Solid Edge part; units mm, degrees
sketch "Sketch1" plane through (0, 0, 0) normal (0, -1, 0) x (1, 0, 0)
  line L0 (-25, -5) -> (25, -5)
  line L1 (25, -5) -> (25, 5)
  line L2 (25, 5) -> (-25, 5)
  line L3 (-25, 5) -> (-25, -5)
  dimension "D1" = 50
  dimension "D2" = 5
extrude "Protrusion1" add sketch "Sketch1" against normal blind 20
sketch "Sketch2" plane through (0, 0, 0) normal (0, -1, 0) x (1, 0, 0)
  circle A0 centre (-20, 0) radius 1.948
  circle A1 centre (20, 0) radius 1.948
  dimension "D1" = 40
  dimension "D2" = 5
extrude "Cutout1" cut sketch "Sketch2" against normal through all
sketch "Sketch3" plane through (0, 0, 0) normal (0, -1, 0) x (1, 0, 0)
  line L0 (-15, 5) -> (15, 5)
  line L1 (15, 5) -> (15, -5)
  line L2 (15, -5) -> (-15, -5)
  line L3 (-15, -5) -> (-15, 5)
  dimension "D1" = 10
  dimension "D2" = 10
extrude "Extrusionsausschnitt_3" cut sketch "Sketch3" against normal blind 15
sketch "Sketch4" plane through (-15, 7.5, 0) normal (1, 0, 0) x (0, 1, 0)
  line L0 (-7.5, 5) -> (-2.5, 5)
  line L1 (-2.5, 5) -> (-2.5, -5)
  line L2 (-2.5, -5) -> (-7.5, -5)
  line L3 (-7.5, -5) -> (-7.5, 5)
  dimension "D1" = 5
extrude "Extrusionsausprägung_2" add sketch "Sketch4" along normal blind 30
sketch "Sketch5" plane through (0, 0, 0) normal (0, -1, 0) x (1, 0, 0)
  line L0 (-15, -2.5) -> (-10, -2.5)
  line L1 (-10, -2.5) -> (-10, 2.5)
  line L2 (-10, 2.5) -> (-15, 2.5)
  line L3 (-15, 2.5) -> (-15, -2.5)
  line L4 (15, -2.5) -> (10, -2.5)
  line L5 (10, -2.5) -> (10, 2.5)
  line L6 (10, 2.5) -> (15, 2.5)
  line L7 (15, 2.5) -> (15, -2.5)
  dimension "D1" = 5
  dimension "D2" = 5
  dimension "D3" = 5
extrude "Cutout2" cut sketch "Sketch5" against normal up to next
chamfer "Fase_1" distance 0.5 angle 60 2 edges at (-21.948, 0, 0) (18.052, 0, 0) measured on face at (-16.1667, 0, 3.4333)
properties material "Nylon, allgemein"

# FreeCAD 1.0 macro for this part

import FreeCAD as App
import Part
import Sketcher


def edges_at(feature, points):
    """Names of the edges that pass closest to the given points."""
    edges = feature.Shape.Edges
    near = lambda p: min(range(len(edges)), key=lambda i: edges[i].distToShape(Part.Vertex(*p))[0])
    return sorted({f"Edge{near(p) + 1}" for p in points})

doc = App.newDocument("Part")
body = doc.addObject("PartDesign::Body", "Body")

# Sketch on XZ plane
sketch1 = body.newObject("Sketcher::SketchObject", "Sketch")
sketch1.AttachmentSupport = (doc.getObject("XZ_Plane"), [""])
sketch1.MapMode = "FlatFace"
sketch1.addGeometry([
    Part.LineSegment(App.Vector(-25, 5, 0), App.Vector(-25, -5, 0)),
    Part.LineSegment(App.Vector(-25, -5, 0), App.Vector(25, -5, 0)),
    Part.LineSegment(App.Vector(25, -5, 0), App.Vector(25, 5, 0)),
    Part.LineSegment(App.Vector(25, 5, 0), App.Vector(-25, 5, 0)),
], False)
sketch1.addConstraint([
    Sketcher.Constraint("Coincident", 0, 2, 1, 1),
    Sketcher.Constraint("Coincident", 1, 2, 2, 1),
    Sketcher.Constraint("Coincident", 2, 2, 3, 1),
    Sketcher.Constraint("Coincident", 3, 2, 0, 1),
    Sketcher.Constraint("Vertical", 0),
    Sketcher.Constraint("Horizontal", 1),
    Sketcher.Constraint("Vertical", 2),
    Sketcher.Constraint("Horizontal", 3),
    Sketcher.Constraint("Symmetric", 0, 2, 2, 2, -1, 1),
    Sketcher.Constraint("DistanceX", 0, 2, -1, 1, 25.0),
    Sketcher.Constraint("DistanceY", 0, 2, 0, 1, 10.0),
])
pad1 = body.newObject("PartDesign::Pad", "Pad")
pad1.Profile = sketch1
pad1.Length = 20
pad1.Reversed = True

# Sketch on XZ plane
sketch2 = body.newObject("Sketcher::SketchObject", "Sketch001")
sketch2.AttachmentSupport = (doc.getObject("XZ_Plane"), [""])
sketch2.MapMode = "FlatFace"
sketch2.addGeometry([
    Part.Circle(App.Vector(-20, 0, 0), App.Vector(0, 0, 1), 1.9),
    Part.Circle(App.Vector(20, 0, 0), App.Vector(0, 0, 1), 1.9),
], False)
sketch2.addConstraint([
    Sketcher.Constraint("Equal", 0, 1),
    Sketcher.Constraint("Symmetric", 0, 3, 1, 3, -1, 1),
    Sketcher.Constraint("PointOnObject", 0, 3, -1),
    Sketcher.Constraint("Diameter", 0, 3.896),
    Sketcher.Constraint("DistanceX", 0, 3, -1, 1, 20.0),
])
pocket1 = body.newObject("PartDesign::Pocket", "Pocket")
pocket1.Profile = sketch2
pocket1.Type = "ThroughAll"

# Sketch on XZ plane
sketch3 = body.newObject("Sketcher::SketchObject", "Sketch002")
sketch3.AttachmentSupport = (doc.getObject("XZ_Plane"), [""])
sketch3.MapMode = "FlatFace"
sketch3.addGeometry([
    Part.LineSegment(App.Vector(15, 5, 0), App.Vector(-15, 5, 0)),
    Part.LineSegment(App.Vector(-15, 5, 0), App.Vector(-15, -5, 0)),
    Part.LineSegment(App.Vector(-15, -5, 0), App.Vector(15, -5, 0)),
    Part.LineSegment(App.Vector(15, -5, 0), App.Vector(15, 5, 0)),
], False)
sketch3.addConstraint([
    Sketcher.Constraint("Coincident", 0, 2, 1, 1),
    Sketcher.Constraint("Coincident", 1, 2, 2, 1),
    Sketcher.Constraint("Coincident", 2, 2, 3, 1),
    Sketcher.Constraint("Coincident", 3, 2, 0, 1),
    Sketcher.Constraint("Horizontal", 0),
    Sketcher.Constraint("Vertical", 1),
    Sketcher.Constraint("Horizontal", 2),
    Sketcher.Constraint("Vertical", 3),
    Sketcher.Constraint("Symmetric", 0, 2, 2, 2, -1, 1),
    Sketcher.Constraint("DistanceX", 0, 2, 0, 1, 30.0),
    Sketcher.Constraint("DistanceY", 1, 2, 1, 1, 10.0),
])
pocket2 = body.newObject("PartDesign::Pocket", "Pocket001")
pocket2.Profile = sketch3
pocket2.Length = 15

# Sketch on YZ plane
sketch4 = body.newObject("Sketcher::SketchObject", "Sketch003")
sketch4.AttachmentSupport = (doc.getObject("YZ_Plane"), [""])
sketch4.MapMode = "FlatFace"
sketch4.AttachmentOffset = App.Placement(App.Vector(0, 0, -15), App.Rotation())
sketch4.addGeometry([
    Part.LineSegment(App.Vector(5, 5, 0), App.Vector(0, 5, 0)),
    Part.LineSegment(App.Vector(0, 5, 0), App.Vector(0, -5, 0)),
    Part.LineSegment(App.Vector(0, -5, 0), App.Vector(5, -5, 0)),
    Part.LineSegment(App.Vector(5, -5, 0), App.Vector(5, 5, 0)),
], False)
sketch4.addConstraint([
    Sketcher.Constraint("Coincident", 0, 2, 1, 1),
    Sketcher.Constraint("Coincident", 1, 2, 2, 1),
    Sketcher.Constraint("Coincident", 2, 2, 3, 1),
    Sketcher.Constraint("Coincident", 3, 2, 0, 1),
    Sketcher.Constraint("Horizontal", 0),
    Sketcher.Constraint("Vertical", 1),
    Sketcher.Constraint("Horizontal", 2),
    Sketcher.Constraint("Vertical", 3),
    Sketcher.Constraint("Symmetric", 0, 2, 1, 2, -1, 1),
    Sketcher.Constraint("DistanceX", 0, 2, 0, 1, 5.0),
    Sketcher.Constraint("DistanceY", 1, 2, 1, 1, 10.0),
])
pad2 = body.newObject("PartDesign::Pad", "Pad001")
pad2.Profile = sketch4
pad2.Length = 30

# Sketch on XZ plane
sketch5 = body.newObject("Sketcher::SketchObject", "Sketch004")
sketch5.AttachmentSupport = (doc.getObject("XZ_Plane"), [""])
sketch5.MapMode = "FlatFace"
sketch5.addGeometry([
    Part.LineSegment(App.Vector(-15, 2, 0), App.Vector(-15, -2, 0)),  # 0
    Part.LineSegment(App.Vector(-15, -2, 0), App.Vector(-10, -2, 0)),  # 1
    Part.LineSegment(App.Vector(-10, -2, 0), App.Vector(-10, 2, 0)),  # 2
    Part.LineSegment(App.Vector(-10, 2, 0), App.Vector(-15, 2, 0)),  # 3
    Part.LineSegment(App.Vector(10, -2, 0), App.Vector(15, -2, 0)),  # 4
    Part.LineSegment(App.Vector(15, -2, 0), App.Vector(15, 2, 0)),  # 5
    Part.LineSegment(App.Vector(15, 2, 0), App.Vector(10, 2, 0)),  # 6
    Part.LineSegment(App.Vector(10, 2, 0), App.Vector(10, -2, 0)),  # 7
], False)
sketch5.addConstraint([
    Sketcher.Constraint("Coincident", 0, 2, 1, 1),
    Sketcher.Constraint("Coincident", 1, 2, 2, 1),
    Sketcher.Constraint("Coincident", 2, 2, 3, 1),
    Sketcher.Constraint("Coincident", 3, 2, 0, 1),
    Sketcher.Constraint("Coincident", 4, 2, 5, 1),
    Sketcher.Constraint("Coincident", 5, 2, 6, 1),
    Sketcher.Constraint("Coincident", 6, 2, 7, 1),
    Sketcher.Constraint("Coincident", 7, 2, 4, 1),
    Sketcher.Constraint("Vertical", 0),
    Sketcher.Constraint("Horizontal", 1),
    Sketcher.Constraint("Vertical", 2),
    Sketcher.Constraint("Horizontal", 3),
    Sketcher.Constraint("Horizontal", 4),
    Sketcher.Constraint("Vertical", 5),
    Sketcher.Constraint("Horizontal", 6),
    Sketcher.Constraint("Vertical", 7),
    Sketcher.Constraint("Symmetric", 3, 2, 4, 2, -1, 1),
    Sketcher.Constraint("Symmetric", 1, 2, 6, 2, -1, 1),
    Sketcher.Constraint("Horizontal", 1, 2, 4, 2),
    Sketcher.Constraint("Equal", 6, 0),
    Sketcher.Constraint("DistanceX", 1, 2, -1, 1, 10.0),
    Sketcher.Constraint("DistanceX", 1, 1, 1, 2, 5.0),
])
pocket3 = body.newObject("PartDesign::Pocket", "Pocket002")
pocket3.Profile = sketch5
pocket3.Type = "UpToFirst"
doc.recompute()

chamfer = body.newObject("PartDesign::Chamfer", "Chamfer")
chamfer.Base = (pocket3, edges_at(pocket3, [(-21.948, 0, 0), (18.052, 0, 0)]))
chamfer.ChamferType = "Distance and Angle"
chamfer.Size = 0.5
chamfer.Angle = 60

doc.recompute()
